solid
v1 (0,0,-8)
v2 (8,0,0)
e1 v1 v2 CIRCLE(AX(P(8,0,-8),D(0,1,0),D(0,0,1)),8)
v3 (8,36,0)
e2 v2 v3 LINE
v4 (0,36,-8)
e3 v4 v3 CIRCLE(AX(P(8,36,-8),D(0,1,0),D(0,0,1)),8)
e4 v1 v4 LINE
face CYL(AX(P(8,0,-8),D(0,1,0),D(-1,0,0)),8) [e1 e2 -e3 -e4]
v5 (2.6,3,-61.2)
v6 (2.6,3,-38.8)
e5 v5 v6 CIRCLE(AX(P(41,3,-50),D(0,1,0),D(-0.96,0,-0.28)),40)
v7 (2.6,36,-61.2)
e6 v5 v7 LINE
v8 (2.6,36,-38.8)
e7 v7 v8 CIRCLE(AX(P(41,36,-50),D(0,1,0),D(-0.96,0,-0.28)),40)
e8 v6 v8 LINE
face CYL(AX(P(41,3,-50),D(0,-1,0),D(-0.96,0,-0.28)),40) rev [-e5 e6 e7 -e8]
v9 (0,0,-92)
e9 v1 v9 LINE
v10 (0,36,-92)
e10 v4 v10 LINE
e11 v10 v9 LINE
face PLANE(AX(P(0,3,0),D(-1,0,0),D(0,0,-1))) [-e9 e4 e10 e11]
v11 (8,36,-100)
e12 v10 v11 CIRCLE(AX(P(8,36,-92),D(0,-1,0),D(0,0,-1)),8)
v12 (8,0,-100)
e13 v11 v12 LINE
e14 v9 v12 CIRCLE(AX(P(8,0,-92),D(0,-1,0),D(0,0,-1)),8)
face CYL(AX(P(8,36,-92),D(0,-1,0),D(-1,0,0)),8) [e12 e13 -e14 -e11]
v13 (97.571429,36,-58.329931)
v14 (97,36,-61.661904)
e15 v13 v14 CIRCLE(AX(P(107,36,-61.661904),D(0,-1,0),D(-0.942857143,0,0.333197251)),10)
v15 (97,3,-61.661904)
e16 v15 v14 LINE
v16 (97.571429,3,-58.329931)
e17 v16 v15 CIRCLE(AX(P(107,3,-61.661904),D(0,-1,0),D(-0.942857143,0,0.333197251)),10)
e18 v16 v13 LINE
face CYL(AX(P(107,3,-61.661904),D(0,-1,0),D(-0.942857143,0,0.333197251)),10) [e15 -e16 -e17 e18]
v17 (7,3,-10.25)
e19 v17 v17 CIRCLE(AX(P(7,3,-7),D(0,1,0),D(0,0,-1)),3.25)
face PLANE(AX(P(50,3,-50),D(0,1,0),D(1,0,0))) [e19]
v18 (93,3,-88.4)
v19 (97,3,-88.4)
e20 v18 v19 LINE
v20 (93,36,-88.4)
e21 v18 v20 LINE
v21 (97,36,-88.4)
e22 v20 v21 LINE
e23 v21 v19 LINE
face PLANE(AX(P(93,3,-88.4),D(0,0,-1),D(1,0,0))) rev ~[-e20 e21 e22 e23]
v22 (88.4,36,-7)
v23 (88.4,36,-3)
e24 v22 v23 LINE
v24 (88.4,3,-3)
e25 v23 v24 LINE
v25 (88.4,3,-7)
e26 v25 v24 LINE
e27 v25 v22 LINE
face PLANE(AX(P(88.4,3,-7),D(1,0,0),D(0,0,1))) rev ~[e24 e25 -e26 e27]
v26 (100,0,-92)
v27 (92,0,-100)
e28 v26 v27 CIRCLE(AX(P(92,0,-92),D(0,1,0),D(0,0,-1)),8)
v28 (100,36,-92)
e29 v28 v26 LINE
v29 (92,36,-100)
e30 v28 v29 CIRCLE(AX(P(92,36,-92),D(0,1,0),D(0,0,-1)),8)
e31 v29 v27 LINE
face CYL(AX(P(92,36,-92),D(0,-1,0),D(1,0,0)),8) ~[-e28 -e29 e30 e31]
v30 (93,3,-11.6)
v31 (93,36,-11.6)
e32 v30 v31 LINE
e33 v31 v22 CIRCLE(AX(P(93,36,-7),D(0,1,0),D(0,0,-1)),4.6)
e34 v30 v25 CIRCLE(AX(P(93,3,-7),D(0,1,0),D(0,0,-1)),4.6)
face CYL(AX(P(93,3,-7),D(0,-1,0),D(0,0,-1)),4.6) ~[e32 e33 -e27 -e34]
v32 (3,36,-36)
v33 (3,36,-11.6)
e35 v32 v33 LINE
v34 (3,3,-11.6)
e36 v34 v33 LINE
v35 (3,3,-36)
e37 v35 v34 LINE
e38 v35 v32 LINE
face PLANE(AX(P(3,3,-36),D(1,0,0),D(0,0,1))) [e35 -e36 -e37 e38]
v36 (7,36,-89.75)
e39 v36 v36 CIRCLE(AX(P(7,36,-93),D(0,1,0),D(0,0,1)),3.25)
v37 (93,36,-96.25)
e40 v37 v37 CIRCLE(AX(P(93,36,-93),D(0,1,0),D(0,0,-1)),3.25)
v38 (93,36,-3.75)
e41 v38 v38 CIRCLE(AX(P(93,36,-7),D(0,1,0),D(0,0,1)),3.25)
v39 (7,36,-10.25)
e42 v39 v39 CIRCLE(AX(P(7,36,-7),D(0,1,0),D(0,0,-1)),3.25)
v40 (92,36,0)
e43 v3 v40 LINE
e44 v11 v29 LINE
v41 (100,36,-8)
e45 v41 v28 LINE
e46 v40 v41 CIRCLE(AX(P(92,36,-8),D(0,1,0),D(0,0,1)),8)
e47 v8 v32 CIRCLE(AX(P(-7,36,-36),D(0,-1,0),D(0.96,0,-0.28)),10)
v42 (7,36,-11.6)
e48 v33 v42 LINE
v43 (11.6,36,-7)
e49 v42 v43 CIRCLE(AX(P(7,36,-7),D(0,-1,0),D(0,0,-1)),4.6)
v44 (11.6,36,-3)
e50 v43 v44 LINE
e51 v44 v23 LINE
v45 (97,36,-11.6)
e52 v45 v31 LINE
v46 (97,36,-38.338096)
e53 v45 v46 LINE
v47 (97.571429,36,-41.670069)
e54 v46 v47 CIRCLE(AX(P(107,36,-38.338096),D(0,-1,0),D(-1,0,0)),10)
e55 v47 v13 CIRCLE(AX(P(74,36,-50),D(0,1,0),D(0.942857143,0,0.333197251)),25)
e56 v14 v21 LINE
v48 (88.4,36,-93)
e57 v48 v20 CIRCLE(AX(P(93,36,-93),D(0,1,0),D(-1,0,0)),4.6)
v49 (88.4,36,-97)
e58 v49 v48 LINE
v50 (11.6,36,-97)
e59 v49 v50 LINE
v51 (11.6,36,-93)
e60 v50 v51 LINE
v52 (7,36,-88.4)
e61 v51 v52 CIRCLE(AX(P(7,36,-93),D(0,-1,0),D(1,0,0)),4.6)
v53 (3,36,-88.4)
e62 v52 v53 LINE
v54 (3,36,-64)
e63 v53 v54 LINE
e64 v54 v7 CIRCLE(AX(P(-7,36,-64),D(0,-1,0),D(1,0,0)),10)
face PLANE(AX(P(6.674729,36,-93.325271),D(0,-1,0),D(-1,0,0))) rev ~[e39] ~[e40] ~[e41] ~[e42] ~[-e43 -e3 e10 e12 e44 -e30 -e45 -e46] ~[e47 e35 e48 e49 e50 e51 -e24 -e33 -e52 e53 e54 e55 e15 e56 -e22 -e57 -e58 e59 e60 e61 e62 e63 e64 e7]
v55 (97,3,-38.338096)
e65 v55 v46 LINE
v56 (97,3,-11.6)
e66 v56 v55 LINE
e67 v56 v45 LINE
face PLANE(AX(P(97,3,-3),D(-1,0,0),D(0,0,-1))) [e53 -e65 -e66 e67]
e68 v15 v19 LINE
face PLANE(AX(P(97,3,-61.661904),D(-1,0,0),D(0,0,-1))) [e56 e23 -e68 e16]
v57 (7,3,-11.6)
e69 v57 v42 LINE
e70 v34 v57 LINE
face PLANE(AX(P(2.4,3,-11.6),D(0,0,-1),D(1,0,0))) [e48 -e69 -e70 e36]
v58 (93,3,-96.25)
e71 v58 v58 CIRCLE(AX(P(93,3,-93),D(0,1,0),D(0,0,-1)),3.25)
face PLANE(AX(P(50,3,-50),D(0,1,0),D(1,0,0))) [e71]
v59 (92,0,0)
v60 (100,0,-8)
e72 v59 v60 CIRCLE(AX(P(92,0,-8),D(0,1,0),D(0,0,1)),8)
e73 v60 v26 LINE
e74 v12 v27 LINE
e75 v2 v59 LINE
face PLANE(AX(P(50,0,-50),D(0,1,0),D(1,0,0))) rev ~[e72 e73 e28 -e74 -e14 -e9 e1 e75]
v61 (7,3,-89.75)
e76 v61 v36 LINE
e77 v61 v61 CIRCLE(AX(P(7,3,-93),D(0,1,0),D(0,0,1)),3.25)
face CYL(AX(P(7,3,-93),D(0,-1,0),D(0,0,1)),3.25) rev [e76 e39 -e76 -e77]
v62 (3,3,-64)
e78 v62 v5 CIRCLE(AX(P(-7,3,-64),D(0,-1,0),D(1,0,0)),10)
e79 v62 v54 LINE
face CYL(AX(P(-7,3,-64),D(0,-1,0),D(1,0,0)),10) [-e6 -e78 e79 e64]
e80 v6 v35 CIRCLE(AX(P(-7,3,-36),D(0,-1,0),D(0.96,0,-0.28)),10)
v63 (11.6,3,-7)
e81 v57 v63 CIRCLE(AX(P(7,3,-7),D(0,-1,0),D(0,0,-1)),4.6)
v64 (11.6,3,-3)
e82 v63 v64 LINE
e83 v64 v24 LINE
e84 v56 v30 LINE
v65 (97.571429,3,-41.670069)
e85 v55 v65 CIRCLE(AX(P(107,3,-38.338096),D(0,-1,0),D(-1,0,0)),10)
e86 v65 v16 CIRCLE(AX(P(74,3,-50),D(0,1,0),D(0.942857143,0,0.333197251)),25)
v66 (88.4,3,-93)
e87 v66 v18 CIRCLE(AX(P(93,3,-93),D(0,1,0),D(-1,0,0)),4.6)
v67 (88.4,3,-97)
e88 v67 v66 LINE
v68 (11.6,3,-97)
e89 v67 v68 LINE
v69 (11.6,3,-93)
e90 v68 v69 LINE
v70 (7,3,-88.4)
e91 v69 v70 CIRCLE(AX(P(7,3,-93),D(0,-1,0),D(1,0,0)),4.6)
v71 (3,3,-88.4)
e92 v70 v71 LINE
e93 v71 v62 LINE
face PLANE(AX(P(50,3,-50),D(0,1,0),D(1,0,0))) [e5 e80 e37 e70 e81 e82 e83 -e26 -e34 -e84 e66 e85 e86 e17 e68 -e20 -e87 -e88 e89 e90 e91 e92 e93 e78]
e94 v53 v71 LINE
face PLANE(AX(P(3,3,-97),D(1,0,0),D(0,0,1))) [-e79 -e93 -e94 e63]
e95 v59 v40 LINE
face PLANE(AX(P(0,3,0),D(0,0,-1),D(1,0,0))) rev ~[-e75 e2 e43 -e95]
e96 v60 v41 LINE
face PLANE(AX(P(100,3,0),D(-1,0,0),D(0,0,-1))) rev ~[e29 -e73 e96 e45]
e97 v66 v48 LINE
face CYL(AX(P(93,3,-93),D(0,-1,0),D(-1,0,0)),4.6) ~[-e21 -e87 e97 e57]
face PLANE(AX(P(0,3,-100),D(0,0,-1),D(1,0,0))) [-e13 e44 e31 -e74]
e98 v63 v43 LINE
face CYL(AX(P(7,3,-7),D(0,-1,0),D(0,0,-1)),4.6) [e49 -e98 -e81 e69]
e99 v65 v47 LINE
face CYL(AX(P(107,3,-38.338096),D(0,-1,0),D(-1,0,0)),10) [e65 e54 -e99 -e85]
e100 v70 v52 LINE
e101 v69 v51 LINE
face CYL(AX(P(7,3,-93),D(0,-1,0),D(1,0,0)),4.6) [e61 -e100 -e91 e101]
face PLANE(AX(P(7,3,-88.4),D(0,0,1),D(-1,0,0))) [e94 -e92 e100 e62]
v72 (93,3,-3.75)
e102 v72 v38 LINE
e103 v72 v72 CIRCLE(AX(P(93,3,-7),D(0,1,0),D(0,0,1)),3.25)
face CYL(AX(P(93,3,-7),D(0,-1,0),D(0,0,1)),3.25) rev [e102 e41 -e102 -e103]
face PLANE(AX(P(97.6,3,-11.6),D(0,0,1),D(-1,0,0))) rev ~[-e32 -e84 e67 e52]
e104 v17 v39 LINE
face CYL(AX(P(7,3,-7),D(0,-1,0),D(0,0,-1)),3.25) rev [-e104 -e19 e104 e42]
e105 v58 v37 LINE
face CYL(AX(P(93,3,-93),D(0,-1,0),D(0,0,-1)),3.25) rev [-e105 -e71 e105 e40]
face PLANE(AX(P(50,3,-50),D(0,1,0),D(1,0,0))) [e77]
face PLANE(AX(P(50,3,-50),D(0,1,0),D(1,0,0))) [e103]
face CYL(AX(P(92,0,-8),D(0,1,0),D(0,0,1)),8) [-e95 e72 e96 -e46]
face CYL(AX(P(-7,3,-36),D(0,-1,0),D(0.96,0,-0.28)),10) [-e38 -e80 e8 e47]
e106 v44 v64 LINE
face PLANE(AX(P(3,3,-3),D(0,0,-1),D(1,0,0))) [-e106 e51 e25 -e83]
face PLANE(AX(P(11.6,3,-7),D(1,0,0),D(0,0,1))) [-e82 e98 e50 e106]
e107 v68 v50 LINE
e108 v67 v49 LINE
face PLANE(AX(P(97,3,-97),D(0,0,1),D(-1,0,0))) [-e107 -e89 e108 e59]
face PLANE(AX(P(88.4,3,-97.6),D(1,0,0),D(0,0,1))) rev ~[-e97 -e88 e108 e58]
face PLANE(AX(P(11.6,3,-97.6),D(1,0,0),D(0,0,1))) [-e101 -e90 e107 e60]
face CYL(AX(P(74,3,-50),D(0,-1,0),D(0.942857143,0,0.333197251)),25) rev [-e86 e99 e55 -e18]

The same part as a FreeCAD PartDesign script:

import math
import FreeCAD as App
import Part
import Sketcher
from FreeCAD import Vector
Q = App.Units.Quantity


def edges_at(feature, points):
    """Names of the edges that pass closest to the given points."""
    edges = feature.Shape.Edges
    near = lambda p: min(range(len(edges)), key=lambda i: edges[i].distToShape(Part.Vertex(*p))[0])
    return sorted({f"Edge{near(p) + 1}" for p in points})

doc = App.newDocument("Part")
body = doc.addObject("PartDesign::Body", "Body")

# Sketch on XZ plane
sketch1 = doc.addObject("Sketcher::SketchObject", "Sketch")
body.addObject(sketch1)
sketch1.AttachmentSupport = (doc.XZ_Plane, [""])
sketch1.MapMode = "FlatFace"
sketch1.addGeometry(Part.LineSegment(Vector(0, -100, 0), Vector(0, 0, 0)), False)
sketch1.addGeometry(Part.LineSegment(Vector(0, 0, 0), Vector(100, 0, 0)), False)
sketch1.addGeometry(Part.LineSegment(Vector(100, 0, 0), Vector(100, -100, 0)), False)
sketch1.addGeometry(Part.LineSegment(Vector(100, -100, 0), Vector(0, -100, 0)), False)
sketch1.addConstraint(Sketcher.Constraint("Coincident", 0, 2, 1, 1))
sketch1.addConstraint(Sketcher.Constraint("Coincident", 1, 2, 2, 1))
sketch1.addConstraint(Sketcher.Constraint("Coincident", 2, 2, 3, 1))
sketch1.addConstraint(Sketcher.Constraint("Coincident", 3, 2, 0, 1))
sketch1.addConstraint(Sketcher.Constraint("Vertical", 0))
sketch1.addConstraint(Sketcher.Constraint("Horizontal", 1))
sketch1.addConstraint(Sketcher.Constraint("Vertical", 2))
sketch1.addConstraint(Sketcher.Constraint("Horizontal", 3))
sketch1.addConstraint(Sketcher.Constraint("Coincident", 0, 2, -1, 1))
sketch1.addConstraint(Sketcher.Constraint("Equal", 3, 0))
sketch1.addConstraint(Sketcher.Constraint("DistanceX", 1, 1, 1, 2, Q("100 mm")))
pad1 = doc.addObject("PartDesign::Pad", "Pad")
body.addObject(pad1)
pad1.Profile = sketch1
pad1.Length = 3
pad1.Reversed = True

# Sketch on XZ plane
sketch2 = doc.addObject("Sketcher::SketchObject", "Sketch001")
body.addObject(sketch2)
sketch2.AttachmentSupport = (doc.XZ_Plane, [""])
sketch2.MapMode = "FlatFace"
sketch2.AttachmentOffset = App.Placement(Vector(0, 0, -3), App.Rotation())
sketch2.addGeometry(Part.LineSegment(Vector(0, -100, 0), Vector(0, 0, 0)), False)
sketch2.addGeometry(Part.LineSegment(Vector(0, 0, 0), Vector(100, 0, 0)), False)
sketch2.addGeometry(Part.LineSegment(Vector(100, 0, 0), Vector(100, -100, 0)), False)
sketch2.addGeometry(Part.LineSegment(Vector(100, -100, 0), Vector(0, -100, 0)), False)
sketch2.addGeometry(Part.LineSegment(Vector(3, -97, 0), Vector(97, -97, 0)), False)
sketch2.addGeometry(Part.LineSegment(Vector(97, -97, 0), Vector(97, -61.7, 0)), False)
sketch2.addGeometry(Part.ArcOfCircle(Part.Circle(Vector(107, -61.7, 0), Vector(0, 0, 1), 10), math.radians(160.54), math.radians(180)), False)
sketch2.addGeometry(Part.ArcOfCircle(Part.Circle(Vector(74, -50, 0), Vector(0, 0, 1), 25), math.radians(-19), math.radians(19)), False)
sketch2.addGeometry(Part.ArcOfCircle(Part.Circle(Vector(107, -38.3, 0), Vector(0, 0, 1), 10), math.radians(-180), math.radians(-160.54)), False)
sketch2.addGeometry(Part.LineSegment(Vector(97, -38.3, 0), Vector(97, -3, 0)), False)
sketch2.addGeometry(Part.LineSegment(Vector(97, -3, 0), Vector(3, -3, 0)), False)
sketch2.addGeometry(Part.LineSegment(Vector(3, -3, 0), Vector(3, -36, 0)), False)
sketch2.addGeometry(Part.ArcOfCircle(Part.Circle(Vector(-7, -36, 0), Vector(0, 0, 1), 10), math.radians(-16.26), math.radians(0)), False)
sketch2.addGeometry(Part.ArcOfCircle(Part.Circle(Vector(41, -50, 0), Vector(0, 0, 1), 40), math.radians(164), math.radians(196)), False)
sketch2.addGeometry(Part.ArcOfCircle(Part.Circle(Vector(-7, -64, 0), Vector(0, 0, 1), 10), math.radians(0), math.radians(16.26)), False)
sketch2.addGeometry(Part.LineSegment(Vector(3, -64, 0), Vector(3, -97, 0)), False)
sketch2.addConstraint(Sketcher.Constraint("Coincident", 0, 2, 1, 1))
sketch2.addConstraint(Sketcher.Constraint("Coincident", 1, 2, 2, 1))
sketch2.addConstraint(Sketcher.Constraint("Coincident", 2, 2, 3, 1))
sketch2.addConstraint(Sketcher.Constraint("Coincident", 3, 2, 0, 1))
sketch2.addConstraint(Sketcher.Constraint("Coincident", 4, 2, 5, 1))
sketch2.addConstraint(Sketcher.Constraint("Tangent", 5, 2, 6, 2))
sketch2.addConstraint(Sketcher.Constraint("Tangent", 6, 1, 7, 1))
sketch2.addConstraint(Sketcher.Constraint("Tangent", 7, 2, 8, 2))
sketch2.addConstraint(Sketcher.Constraint("Tangent", 8, 1, 9, 1))
sketch2.addConstraint(Sketcher.Constraint("Coincident", 9, 2, 10, 1))
sketch2.addConstraint(Sketcher.Constraint("Coincident", 10, 2, 11, 1))
sketch2.addConstraint(Sketcher.Constraint("Tangent", 11, 2, 12, 2))
sketch2.addConstraint(Sketcher.Constraint("Tangent", 12, 1, 13, 1))
sketch2.addConstraint(Sketcher.Constraint("Tangent", 13, 2, 14, 2))
sketch2.addConstraint(Sketcher.Constraint("Tangent", 14, 1, 15, 1))
sketch2.addConstraint(Sketcher.Constraint("Coincident", 15, 2, 4, 1))
sketch2.addConstraint(Sketcher.Constraint("Vertical", 0))
sketch2.addConstraint(Sketcher.Constraint("Horizontal", 1))
sketch2.addConstraint(Sketcher.Constraint("Vertical", 2))
sketch2.addConstraint(Sketcher.Constraint("Horizontal", 3))
sketch2.addConstraint(Sketcher.Constraint("Horizontal", 4))
sketch2.addConstraint(Sketcher.Constraint("Vertical", 5))
sketch2.addConstraint(Sketcher.Constraint("Vertical", 9))
sketch2.addConstraint(Sketcher.Constraint("Horizontal", 10))
sketch2.addConstraint(Sketcher.Constraint("Vertical", 11))
sketch2.addConstraint(Sketcher.Constraint("Vertical", 15))
sketch2.addConstraint(Sketcher.Constraint("Coincident", 0, 2, -1, 1))
sketch2.addConstraint(Sketcher.Constraint("Equal", 6, 8))
sketch2.addConstraint(Sketcher.Constraint("Equal", 8, 12))
sketch2.addConstraint(Sketcher.Constraint("Equal", 12, 14))
sketch2.addConstraint(Sketcher.Constraint("Horizontal", 7, 3, 13, 3))
sketch2.addConstraint(Sketcher.Constraint("Vertical", 6, 3, 8, 3))
sketch2.addConstraint(Sketcher.Constraint("Vertical", 12, 3, 14, 3))
sketch2.addConstraint(Sketcher.Constraint("Equal", 3, 0))
sketch2.addConstraint(Sketcher.Constraint("Equal", 5, 9))
sketch2.addConstraint(Sketcher.Constraint("Radius", 6, Q("10 mm")))
sketch2.addConstraint(Sketcher.Constraint("Radius", 7, Q("25 mm")))
sketch2.addConstraint(Sketcher.Constraint("Radius", 13, Q("40 mm")))
sketch2.addConstraint(Sketcher.Constraint("DistanceX", 1, 1, 1, 2, Q("100 mm")))
sketch2.addConstraint(Sketcher.Constraint("DistanceX", 4, 1, 4, 2, Q("94 mm")))
sketch2.addConstraint(Sketcher.Constraint("DistanceY", 11, 2, 11, 1, Q("33 mm")))
sketch2.addConstraint(Sketcher.Constraint("DistanceX", -1, 1, 6, 3, Q("107 mm")))
sketch2.addConstraint(Sketcher.Constraint("DistanceX", -1, 1, 7, 3, Q("74 mm")))
sketch2.addConstraint(Sketcher.Constraint("DistanceY", 7, 3, -1, 1, Q("50 mm")))
sketch2.addConstraint(Sketcher.Constraint("DistanceY", 12, 3, -1, 1, Q("36 mm")))
pad2 = doc.addObject("PartDesign::Pad", "Pad001")
body.addObject(pad2)
pad2.Profile = sketch2
pad2.Length = 33
pad2.Reversed = True
doc.recompute()

fillet = doc.addObject("PartDesign::Fillet", "Fillet")
body.addObject(fillet)
fillet.Base = (pad2, edges_at(pad2, [
    (0, 18, -100),
    (100, 18, -100),
    (100, 18, 0),
    (0, 18, 0),
]))
fillet.Radius = 8

# Sketch on XZ plane
sketch3 = doc.addObject("Sketcher::SketchObject", "Sketch002")
body.addObject(sketch3)
sketch3.AttachmentSupport = (doc.XZ_Plane, [""])
sketch3.MapMode = "FlatFace"
sketch3.AttachmentOffset = App.Placement(Vector(0, 0, -3), App.Rotation())
sketch3.addGeometry(Part.LineSegment(Vector(2.4, -88.4, 0), Vector(7, -88.4, 0)), False)
sketch3.addGeometry(Part.ArcOfCircle(Part.Circle(Vector(7, -93, 0), Vector(0, 0, 1), 4.6), math.radians(0), math.radians(90)), False)
sketch3.addGeometry(Part.LineSegment(Vector(11.6, -93, 0), Vector(11.6, -97.6, 0)), False)
sketch3.addGeometry(Part.LineSegment(Vector(11.6, -97.6, 0), Vector(2.4, -97.6, 0)), False)
sketch3.addGeometry(Part.LineSegment(Vector(2.4, -97.6, 0), Vector(2.4, -88.4, 0)), False)
sketch3.addGeometry(Part.Circle(Vector(7, -93, 0), Vector(0, 0, 1), 3.2), False)
sketch3.addGeometry(Part.LineSegment(Vector(93, -88.4, 0), Vector(97.6, -88.4, 0)), False)
sketch3.addGeometry(Part.LineSegment(Vector(97.6, -88.4, 0), Vector(97.6, -97.6, 0)), False)
sketch3.addGeometry(Part.LineSegment(Vector(97.6, -97.6, 0), Vector(88.4, -97.6, 0)), False)
sketch3.addGeometry(Part.LineSegment(Vector(88.4, -97.6, 0), Vector(88.4, -93, 0)), False)
sketch3.addGeometry(Part.ArcOfCircle(Part.Circle(Vector(93, -93, 0), Vector(0, 0, 1), 4.6), math.radians(90), math.radians(180)), False)
sketch3.addGeometry(Part.Circle(Vector(93, -93, 0), Vector(0, 0, 1), 3.2), False)
sketch3.addGeometry(Part.LineSegment(Vector(88.4, -7, 0), Vector(88.4, -2.4, 0)), False)
sketch3.addGeometry(Part.LineSegment(Vector(88.4, -2.4, 0), Vector(97.6, -2.4, 0)), False)
sketch3.addGeometry(Part.LineSegment(Vector(97.6, -2.4, 0), Vector(97.6, -11.6, 0)), False)
sketch3.addGeometry(Part.LineSegment(Vector(97.6, -11.6, 0), Vector(93, -11.6, 0)), False)
sketch3.addGeometry(Part.ArcOfCircle(Part.Circle(Vector(93, -7, 0), Vector(0, 0, 1), 4.6), math.radians(-180), math.radians(-90)), False)
sketch3.addGeometry(Part.Circle(Vector(93, -7, 0), Vector(0, 0, 1), 3.2), False)
sketch3.addGeometry(Part.LineSegment(Vector(11.6, -2.4, 0), Vector(11.6, -7, 0)), False)
sketch3.addGeometry(Part.ArcOfCircle(Part.Circle(Vector(7, -7, 0), Vector(0, 0, 1), 4.6), math.radians(-90), math.radians(0)), False)
sketch3.addGeometry(Part.LineSegment(Vector(7, -11.6, 0), Vector(2.4, -11.6, 0)), False)
sketch3.addGeometry(Part.LineSegment(Vector(2.4, -11.6, 0), Vector(2.4, -2.4, 0)), False)
sketch3.addGeometry(Part.LineSegment(Vector(2.4, -2.4, 0), Vector(11.6, -2.4, 0)), False)
sketch3.addGeometry(Part.Circle(Vector(7, -7, 0), Vector(0, 0, 1), 3.2), False)
sketch3.addConstraint(Sketcher.Constraint("Tangent", 0, 2, 1, 2))
sketch3.addConstraint(Sketcher.Constraint("Tangent", 1, 1, 2, 1))
sketch3.addConstraint(Sketcher.Constraint("Coincident", 2, 2, 3, 1))
sketch3.addConstraint(Sketcher.Constraint("Coincident", 3, 2, 4, 1))
sketch3.addConstraint(Sketcher.Constraint("Coincident", 4, 2, 0, 1))
sketch3.addConstraint(Sketcher.Constraint("Coincident", 6, 2, 7, 1))
sketch3.addConstraint(Sketcher.Constraint("Coincident", 7, 2, 8, 1))
sketch3.addConstraint(Sketcher.Constraint("Coincident", 8, 2, 9, 1))
sketch3.addConstraint(Sketcher.Constraint("Tangent", 9, 2, 10, 2))
sketch3.addConstraint(Sketcher.Constraint("Tangent", 10, 1, 6, 1))
sketch3.addConstraint(Sketcher.Constraint("Coincident", 12, 2, 13, 1))
sketch3.addConstraint(Sketcher.Constraint("Coincident", 13, 2, 14, 1))
sketch3.addConstraint(Sketcher.Constraint("Coincident", 14, 2, 15, 1))
sketch3.addConstraint(Sketcher.Constraint("Tangent", 15, 2, 16, 2))
sketch3.addConstraint(Sketcher.Constraint("Tangent", 16, 1, 12, 1))
sketch3.addConstraint(Sketcher.Constraint("Tangent", 18, 2, 19, 2))
sketch3.addConstraint(Sketcher.Constraint("Tangent", 19, 1, 20, 1))
sketch3.addConstraint(Sketcher.Constraint("Coincident", 20, 2, 21, 1))
sketch3.addConstraint(Sketcher.Constraint("Coincident", 21, 2, 22, 1))
sketch3.addConstraint(Sketcher.Constraint("Coincident", 22, 2, 18, 1))
sketch3.addConstraint(Sketcher.Constraint("Horizontal", 0))
sketch3.addConstraint(Sketcher.Constraint("Vertical", 2))
sketch3.addConstraint(Sketcher.Constraint("Horizontal", 3))
sketch3.addConstraint(Sketcher.Constraint("Vertical", 4))
sketch3.addConstraint(Sketcher.Constraint("Horizontal", 6))
sketch3.addConstraint(Sketcher.Constraint("Vertical", 7))
sketch3.addConstraint(Sketcher.Constraint("Horizontal", 8))
sketch3.addConstraint(Sketcher.Constraint("Vertical", 9))
sketch3.addConstraint(Sketcher.Constraint("Vertical", 12))
sketch3.addConstraint(Sketcher.Constraint("Horizontal", 13))
sketch3.addConstraint(Sketcher.Constraint("Vertical", 14))
sketch3.addConstraint(Sketcher.Constraint("Horizontal", 15))
sketch3.addConstraint(Sketcher.Constraint("Vertical", 18))
sketch3.addConstraint(Sketcher.Constraint("Horizontal", 20))
sketch3.addConstraint(Sketcher.Constraint("Vertical", 21))
sketch3.addConstraint(Sketcher.Constraint("Horizontal", 22))
sketch3.addConstraint(Sketcher.Constraint("Coincident", 5, 3, 1, 3))
sketch3.addConstraint(Sketcher.Constraint("Coincident", 11, 3, 10, 3))
sketch3.addConstraint(Sketcher.Constraint("Coincident", 17, 3, 16, 3))
sketch3.addConstraint(Sketcher.Constraint("Coincident", 23, 3, 19, 3))
sketch3.addConstraint(Sketcher.Constraint("Equal", 1, 10))
sketch3.addConstraint(Sketcher.Constraint("Equal", 5, 11))
sketch3.addConstraint(Sketcher.Constraint("Equal", 10, 16))
sketch3.addConstraint(Sketcher.Constraint("Equal", 11, 17))
sketch3.addConstraint(Sketcher.Constraint("Equal", 16, 19))
sketch3.addConstraint(Sketcher.Constraint("Equal", 17, 23))
sketch3.addConstraint(Sketcher.Constraint("Horizontal", 5, 3, 10, 3))
sketch3.addConstraint(Sketcher.Constraint("Horizontal", 17, 3, 19, 3))
sketch3.addConstraint(Sketcher.Constraint("Horizontal", 3, 2, 7, 2))
sketch3.addConstraint(Sketcher.Constraint("Horizontal", 13, 2, 21, 2))
sketch3.addConstraint(Sketcher.Constraint("Vertical", 11, 3, 16, 3))
sketch3.addConstraint(Sketcher.Constraint("Vertical", 5, 3, 19, 3))
sketch3.addConstraint(Sketcher.Constraint("Vertical", 7, 2, 13, 2))
sketch3.addConstraint(Sketcher.Constraint("Vertical", 4, 2, 20, 2))
sketch3.addConstraint(Sketcher.Constraint("Equal", 0, 6))
sketch3.addConstraint(Sketcher.Constraint("Equal", 20, 2))
sketch3.addConstraint(Sketcher.Constraint("Equal", 9, 12))
sketch3.addConstraint(Sketcher.Constraint("Diameter", 5, Q("6.5 mm")))
sketch3.addConstraint(Sketcher.Constraint("Radius", 1, Q("4.6 mm")))
sketch3.addConstraint(Sketcher.Constraint("DistanceX", 0, 1, 0, 2, Q("4.6 mm")))
sketch3.addConstraint(Sketcher.Constraint("DistanceX", -1, 1, 1, 3, Q("7 mm")))
sketch3.addConstraint(Sketcher.Constraint("DistanceY", 1, 3, -1, 1, Q("93 mm")))
sketch3.addConstraint(Sketcher.Constraint("DistanceX", -1, 1, 10, 3, Q("93 mm")))
sketch3.addConstraint(Sketcher.Constraint("DistanceY", 16, 3, -1, 1, Q("7 mm")))
pad3 = doc.addObject("PartDesign::Pad", "Pad002")
body.addObject(pad3)
pad3.Profile = sketch3
pad3.Length = 33
pad3.Reversed = True

doc.recompute()
